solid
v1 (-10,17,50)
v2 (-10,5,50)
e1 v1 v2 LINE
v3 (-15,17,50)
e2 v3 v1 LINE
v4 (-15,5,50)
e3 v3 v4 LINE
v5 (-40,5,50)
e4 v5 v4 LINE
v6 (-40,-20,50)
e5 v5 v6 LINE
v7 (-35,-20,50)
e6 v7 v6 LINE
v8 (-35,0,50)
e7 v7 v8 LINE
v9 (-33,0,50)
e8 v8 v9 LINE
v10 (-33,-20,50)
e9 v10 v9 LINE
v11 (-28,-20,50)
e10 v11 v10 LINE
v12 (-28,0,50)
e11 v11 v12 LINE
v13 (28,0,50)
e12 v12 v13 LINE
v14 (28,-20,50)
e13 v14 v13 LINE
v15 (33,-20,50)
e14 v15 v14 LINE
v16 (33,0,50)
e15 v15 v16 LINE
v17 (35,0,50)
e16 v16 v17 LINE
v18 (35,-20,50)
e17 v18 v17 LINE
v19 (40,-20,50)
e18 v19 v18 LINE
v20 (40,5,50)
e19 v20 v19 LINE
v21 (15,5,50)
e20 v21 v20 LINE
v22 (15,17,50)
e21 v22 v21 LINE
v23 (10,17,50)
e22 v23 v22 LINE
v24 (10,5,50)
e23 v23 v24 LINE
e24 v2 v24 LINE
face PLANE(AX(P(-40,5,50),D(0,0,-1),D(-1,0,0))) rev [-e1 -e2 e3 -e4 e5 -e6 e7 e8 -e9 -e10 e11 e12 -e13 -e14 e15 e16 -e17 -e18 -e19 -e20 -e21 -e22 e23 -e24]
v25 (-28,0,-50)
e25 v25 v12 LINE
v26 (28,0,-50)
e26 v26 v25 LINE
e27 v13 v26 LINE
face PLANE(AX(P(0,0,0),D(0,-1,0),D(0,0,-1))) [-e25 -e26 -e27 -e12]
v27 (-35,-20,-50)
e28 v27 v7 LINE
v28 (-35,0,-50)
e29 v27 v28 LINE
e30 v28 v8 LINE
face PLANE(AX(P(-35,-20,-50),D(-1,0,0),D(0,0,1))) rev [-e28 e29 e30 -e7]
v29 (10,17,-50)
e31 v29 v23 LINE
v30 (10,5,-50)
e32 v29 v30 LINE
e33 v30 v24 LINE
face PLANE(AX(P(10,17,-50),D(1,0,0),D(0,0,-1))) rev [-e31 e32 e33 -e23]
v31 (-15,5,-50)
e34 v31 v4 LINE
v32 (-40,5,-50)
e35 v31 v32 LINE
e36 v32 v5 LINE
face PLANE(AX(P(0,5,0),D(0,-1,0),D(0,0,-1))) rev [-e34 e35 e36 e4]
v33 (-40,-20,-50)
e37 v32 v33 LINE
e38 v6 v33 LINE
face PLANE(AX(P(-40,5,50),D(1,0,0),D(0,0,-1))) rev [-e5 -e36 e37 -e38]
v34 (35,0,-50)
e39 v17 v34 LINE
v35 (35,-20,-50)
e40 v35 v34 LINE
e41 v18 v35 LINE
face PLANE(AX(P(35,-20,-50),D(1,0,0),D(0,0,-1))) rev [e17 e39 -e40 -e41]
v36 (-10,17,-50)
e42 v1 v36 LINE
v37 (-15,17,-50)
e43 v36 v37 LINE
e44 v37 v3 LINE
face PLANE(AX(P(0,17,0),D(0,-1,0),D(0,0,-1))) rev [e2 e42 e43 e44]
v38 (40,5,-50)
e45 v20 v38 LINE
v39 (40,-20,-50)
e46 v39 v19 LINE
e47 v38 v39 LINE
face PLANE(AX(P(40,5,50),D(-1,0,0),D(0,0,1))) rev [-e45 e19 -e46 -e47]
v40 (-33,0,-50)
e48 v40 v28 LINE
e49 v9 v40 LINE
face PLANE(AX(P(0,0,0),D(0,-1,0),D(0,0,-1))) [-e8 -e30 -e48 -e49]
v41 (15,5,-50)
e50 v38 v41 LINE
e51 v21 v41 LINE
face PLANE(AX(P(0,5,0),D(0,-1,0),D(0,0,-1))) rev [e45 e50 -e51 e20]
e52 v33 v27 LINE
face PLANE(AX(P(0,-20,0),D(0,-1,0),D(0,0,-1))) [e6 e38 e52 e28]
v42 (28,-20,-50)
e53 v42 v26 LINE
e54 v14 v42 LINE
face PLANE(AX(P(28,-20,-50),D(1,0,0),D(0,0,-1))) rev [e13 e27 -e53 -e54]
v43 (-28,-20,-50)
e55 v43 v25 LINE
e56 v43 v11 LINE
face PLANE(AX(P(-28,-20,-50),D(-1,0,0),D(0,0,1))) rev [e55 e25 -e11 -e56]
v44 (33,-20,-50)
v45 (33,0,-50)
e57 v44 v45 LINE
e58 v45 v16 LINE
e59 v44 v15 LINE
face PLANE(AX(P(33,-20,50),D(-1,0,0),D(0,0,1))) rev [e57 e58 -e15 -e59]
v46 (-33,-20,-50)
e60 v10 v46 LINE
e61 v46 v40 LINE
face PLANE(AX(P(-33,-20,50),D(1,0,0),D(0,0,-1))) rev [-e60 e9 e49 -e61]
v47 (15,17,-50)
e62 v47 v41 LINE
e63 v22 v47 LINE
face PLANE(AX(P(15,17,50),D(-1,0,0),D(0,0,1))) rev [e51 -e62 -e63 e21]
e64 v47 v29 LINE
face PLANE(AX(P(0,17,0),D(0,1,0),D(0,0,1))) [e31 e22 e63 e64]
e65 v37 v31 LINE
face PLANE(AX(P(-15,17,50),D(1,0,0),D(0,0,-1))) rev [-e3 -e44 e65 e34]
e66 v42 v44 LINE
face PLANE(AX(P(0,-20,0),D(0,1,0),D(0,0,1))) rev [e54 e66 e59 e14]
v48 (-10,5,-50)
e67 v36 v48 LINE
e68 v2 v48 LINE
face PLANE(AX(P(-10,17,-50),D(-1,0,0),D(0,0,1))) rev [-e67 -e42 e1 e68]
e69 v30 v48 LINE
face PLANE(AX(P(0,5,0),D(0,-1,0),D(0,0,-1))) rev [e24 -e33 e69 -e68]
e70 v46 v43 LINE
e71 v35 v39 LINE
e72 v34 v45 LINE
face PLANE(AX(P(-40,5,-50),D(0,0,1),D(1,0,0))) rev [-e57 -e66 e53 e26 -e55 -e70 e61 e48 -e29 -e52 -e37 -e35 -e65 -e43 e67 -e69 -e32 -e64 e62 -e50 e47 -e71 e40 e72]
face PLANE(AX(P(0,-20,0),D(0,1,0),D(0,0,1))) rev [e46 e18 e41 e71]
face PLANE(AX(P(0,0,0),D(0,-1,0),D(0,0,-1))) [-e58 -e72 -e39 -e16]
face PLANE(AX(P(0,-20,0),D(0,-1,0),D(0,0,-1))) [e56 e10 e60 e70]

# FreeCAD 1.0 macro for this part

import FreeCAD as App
import Part
import Sketcher
from FreeCAD import Vector
Q = App.Units.Quantity


def add_polygon(sketch, points):
    """Adds a closed chain of lines whose ends are joined by coincident constraints."""
    first, n = sketch.GeometryCount, len(points)
    for a, b in zip(points, points[1:] + points[:1]):
        sketch.addGeometry(Part.LineSegment(App.Vector(*a, 0), App.Vector(*b, 0)), False)
    for i in range(n):
        sketch.addConstraint(Sketcher.Constraint("Coincident", first + i, 2, first + (i + 1) % n, 1))

doc = App.newDocument("Part")
body = doc.addObject("PartDesign::Body", "Body")

sketch1 = doc.addObject("Sketcher::SketchObject", "Sketch")
body.addObject(sketch1)
sketch1.AttachmentSupport = (doc.XZ_Plane, [""])
sketch1.MapMode = "FlatFace"
add_polygon(sketch1, [(-40, -50), (-40, 50), (40, 50), (40, -50)])
sketch1.addConstraint([
    Sketcher.Constraint("Vertical", 0),
    Sketcher.Constraint("Horizontal", 1),
    Sketcher.Constraint("Vertical", 2),
    Sketcher.Constraint("Horizontal", 3),
    Sketcher.Constraint("Symmetric", 0, 2, 2, 2, -1, 1),
    Sketcher.Constraint("DistanceX", 1, 1, 1, 2, Q("80 mm")),
    Sketcher.Constraint("DistanceY", 0, 1, 0, 2, Q("100 mm")),
])
pad1 = doc.addObject("PartDesign::Pad", "Pad")
body.addObject(pad1)
pad1.Profile = sketch1
pad1.Length = 5
pad1.Reversed = True

sketch2 = doc.addObject("Sketcher::SketchObject", "Sketch001")
body.addObject(sketch2)
sketch2.AttachmentSupport = (doc.XZ_Plane, [""])
sketch2.MapMode = "FlatFace"
add_polygon(sketch2, [(-40, 50), (-40, -50), (-35, -50), (-35, 50)])
add_polygon(sketch2, [(-33, 50), (-33, -50), (-28, -50), (-28, 50)])
add_polygon(sketch2, [(28, 50), (28, -50), (33, -50), (33, 50)])
add_polygon(sketch2, [(35, 50), (35, -50), (40, -50), (40, 50)])
sketch2.addConstraint([
    Sketcher.Constraint("Vertical", 0),
    Sketcher.Constraint("Horizontal", 1),
    Sketcher.Constraint("Vertical", 2),
    Sketcher.Constraint("Horizontal", 3),
    Sketcher.Constraint("Vertical", 4),
    Sketcher.Constraint("Horizontal", 5),
    Sketcher.Constraint("Vertical", 6),
    Sketcher.Constraint("Horizontal", 7),
    Sketcher.Constraint("Vertical", 8),
    Sketcher.Constraint("Horizontal", 9),
    Sketcher.Constraint("Vertical", 10),
    Sketcher.Constraint("Horizontal", 11),
    Sketcher.Constraint("Vertical", 12),
    Sketcher.Constraint("Horizontal", 13),
    Sketcher.Constraint("Vertical", 14),
    Sketcher.Constraint("Horizontal", 15),
    Sketcher.Constraint("Symmetric", 6, 2, 8, 2, -1, 1),
    Sketcher.Constraint("Symmetric", 4, 2, 10, 2, -1, 1),
    Sketcher.Constraint("Symmetric", 2, 2, 12, 2, -1, 1),
    Sketcher.Constraint("Symmetric", 0, 2, 14, 2, -1, 1),
    Sketcher.Constraint("Horizontal", 1, 2, 4, 2),
    Sketcher.Constraint("Horizontal", 3, 2, 6, 2),
    Sketcher.Constraint("Horizontal", 5, 2, 8, 2),
    Sketcher.Constraint("Equal", 3, 5),
    Sketcher.Constraint("DistanceX", 1, 1, 1, 2, Q("5 mm")),
    Sketcher.Constraint("DistanceY", 0, 2, 0, 1, Q("100 mm")),
    Sketcher.Constraint("DistanceX", 0, 2, -1, 1, Q("40 mm")),
    Sketcher.Constraint("DistanceX", 4, 2, -1, 1, Q("33 mm")),
])
pad2 = doc.addObject("PartDesign::Pad", "Pad001")
body.addObject(pad2)
pad2.Profile = sketch2
pad2.Length = 20

sketch3 = doc.addObject("Sketcher::SketchObject", "Sketch002")
body.addObject(sketch3)
sketch3.AttachmentSupport = (doc.XZ_Plane, [""])
sketch3.MapMode = "FlatFace"
sketch3.AttachmentOffset = App.Placement(Vector(0, 0, -5), App.Rotation())
add_polygon(sketch3, [(-15, -50), (-15, 50), (-10, 50), (-10, -50)])
add_polygon(sketch3, [(10, -50), (10, 50), (15, 50), (15, -50)])
sketch3.addConstraint([
    Sketcher.Constraint("Vertical", 0),
    Sketcher.Constraint("Horizontal", 1),
    Sketcher.Constraint("Vertical", 2),
    Sketcher.Constraint("Horizontal", 3),
    Sketcher.Constraint("Vertical", 4),
    Sketcher.Constraint("Horizontal", 5),
    Sketcher.Constraint("Vertical", 6),
    Sketcher.Constraint("Horizontal", 7),
    Sketcher.Constraint("Symmetric", 2, 2, 4, 2, -1, 1),
    Sketcher.Constraint("Symmetric", 0, 2, 6, 2, -1, 1),
    Sketcher.Constraint("Horizontal", 1, 2, 4, 2),
    Sketcher.Constraint("DistanceX", 1, 1, 1, 2, Q("5 mm")),
    Sketcher.Constraint("DistanceY", 0, 1, 0, 2, Q("100 mm")),
    Sketcher.Constraint("DistanceX", 0, 2, -1, 1, Q("15 mm")),
])
pad3 = doc.addObject("PartDesign::Pad", "Pad002")
body.addObject(pad3)
pad3.Profile = sketch3
pad3.Length = 12
pad3.Reversed = True

doc.recompute()
